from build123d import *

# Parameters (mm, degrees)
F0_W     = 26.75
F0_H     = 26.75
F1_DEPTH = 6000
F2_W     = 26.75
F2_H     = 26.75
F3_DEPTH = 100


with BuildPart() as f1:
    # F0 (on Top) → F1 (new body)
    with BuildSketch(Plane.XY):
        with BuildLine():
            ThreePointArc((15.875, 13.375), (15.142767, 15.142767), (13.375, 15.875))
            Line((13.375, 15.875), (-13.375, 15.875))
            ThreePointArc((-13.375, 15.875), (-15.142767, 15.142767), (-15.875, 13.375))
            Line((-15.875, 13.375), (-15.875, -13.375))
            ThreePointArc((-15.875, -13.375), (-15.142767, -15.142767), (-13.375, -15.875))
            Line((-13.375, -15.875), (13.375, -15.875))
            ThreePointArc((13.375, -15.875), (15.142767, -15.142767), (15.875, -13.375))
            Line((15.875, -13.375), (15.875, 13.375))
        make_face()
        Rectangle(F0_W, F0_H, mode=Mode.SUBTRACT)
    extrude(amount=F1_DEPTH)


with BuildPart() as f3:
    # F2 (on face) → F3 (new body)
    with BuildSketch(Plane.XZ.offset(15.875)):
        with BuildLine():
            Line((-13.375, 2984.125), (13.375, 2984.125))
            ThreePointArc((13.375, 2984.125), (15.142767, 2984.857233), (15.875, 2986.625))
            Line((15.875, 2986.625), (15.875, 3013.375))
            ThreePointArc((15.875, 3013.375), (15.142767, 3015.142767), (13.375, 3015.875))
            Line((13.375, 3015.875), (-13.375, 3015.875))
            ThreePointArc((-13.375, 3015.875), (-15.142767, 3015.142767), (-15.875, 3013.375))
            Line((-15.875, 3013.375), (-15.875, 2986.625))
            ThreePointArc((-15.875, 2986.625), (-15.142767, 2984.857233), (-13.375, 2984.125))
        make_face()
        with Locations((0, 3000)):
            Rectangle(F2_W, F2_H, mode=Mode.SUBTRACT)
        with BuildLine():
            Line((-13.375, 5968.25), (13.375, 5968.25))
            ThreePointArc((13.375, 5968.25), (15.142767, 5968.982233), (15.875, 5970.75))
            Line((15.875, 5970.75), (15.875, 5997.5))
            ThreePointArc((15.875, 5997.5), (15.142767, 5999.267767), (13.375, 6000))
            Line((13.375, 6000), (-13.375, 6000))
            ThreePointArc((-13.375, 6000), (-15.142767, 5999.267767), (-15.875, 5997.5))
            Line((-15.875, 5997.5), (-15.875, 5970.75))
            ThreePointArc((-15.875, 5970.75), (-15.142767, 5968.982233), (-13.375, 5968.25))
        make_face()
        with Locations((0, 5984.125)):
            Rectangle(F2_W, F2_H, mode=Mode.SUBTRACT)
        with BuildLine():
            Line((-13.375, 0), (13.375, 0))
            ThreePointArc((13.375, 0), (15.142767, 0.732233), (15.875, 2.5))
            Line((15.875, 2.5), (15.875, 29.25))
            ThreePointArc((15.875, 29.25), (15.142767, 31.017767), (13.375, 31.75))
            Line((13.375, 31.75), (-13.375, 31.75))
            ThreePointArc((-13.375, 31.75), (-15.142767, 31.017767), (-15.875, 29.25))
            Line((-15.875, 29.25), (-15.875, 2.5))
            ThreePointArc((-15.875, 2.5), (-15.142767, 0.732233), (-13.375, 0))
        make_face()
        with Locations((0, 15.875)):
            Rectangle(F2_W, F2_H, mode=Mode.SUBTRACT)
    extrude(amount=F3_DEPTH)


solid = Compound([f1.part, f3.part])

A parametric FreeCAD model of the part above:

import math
import FreeCAD as App
import Part
import Sketcher
Q = App.Units.Quantity

doc = App.newDocument("Part")
params = doc.addObject("Spreadsheet::Sheet", "Params")
for row, (alias, value) in enumerate([
    ("sketch1_radius", "2.5 mm"),
    ("sketch1_width", "26.75 mm"),
    ("pad1_length", "6000 mm"),
    ("sketch2_radius", "2.5 mm"),
    ("sketch2_width", "26.75 mm"),
    ("pad2_length", "100 mm"),
], start=1):
    params.set(f"A{row}", alias)
    params.set(f"B{row}", "=" + value)
    params.setAlias(f"B{row}", alias)

body = doc.addObject("PartDesign::Body", "Body")

sketch1 = body.newObject("Sketcher::SketchObject", "Sketch")
sketch1.AttachmentSupport = (doc.getObject("XY_Plane"), [""])
sketch1.MapMode = "FlatFace"
sketch1.addGeometry(Part.ArcOfCircle(Part.Circle(App.Vector(13.375, 13.375, 0), App.Vector(0, 0, 1), 2.5), math.radians(-0.000004), math.radians(90.000004)), False)
sketch1.addGeometry(Part.LineSegment(App.Vector(13.375, 15.875, 0), App.Vector(-13.375, 15.875, 0)), False)
sketch1.addGeometry(Part.ArcOfCircle(Part.Circle(App.Vector(-13.375, 13.375, 0), App.Vector(0, 0, 1), 2.5), math.radians(89.999996), math.radians(180.000004)), False)
sketch1.addGeometry(Part.LineSegment(App.Vector(-15.875, 13.375, 0), App.Vector(-15.875, -13.375, 0)), False)
sketch1.addGeometry(Part.ArcOfCircle(Part.Circle(App.Vector(-13.375, -13.375, 0), App.Vector(0, 0, 1), 2.5), math.radians(179.999996), math.radians(270.000004)), False)
sketch1.addGeometry(Part.LineSegment(App.Vector(-13.375, -15.875, 0), App.Vector(13.375, -15.875, 0)), False)
sketch1.addGeometry(Part.ArcOfCircle(Part.Circle(App.Vector(13.375, -13.375, 0), App.Vector(0, 0, 1), 2.5), math.radians(-90.000004), math.radians(0.000004)), False)
sketch1.addGeometry(Part.LineSegment(App.Vector(15.875, -13.375, 0), App.Vector(15.875, 13.375, 0)), False)
sketch1.addGeometry(Part.LineSegment(App.Vector(13.375, -13.375, 0), App.Vector(-13.375, -13.375, 0)), False)
sketch1.addGeometry(Part.LineSegment(App.Vector(-13.375, -13.375, 0), App.Vector(-13.375, 13.375, 0)), False)
sketch1.addGeometry(Part.LineSegment(App.Vector(-13.375, 13.375, 0), App.Vector(13.375, 13.375, 0)), False)
sketch1.addGeometry(Part.LineSegment(App.Vector(13.375, 13.375, 0), App.Vector(13.375, -13.375, 0)), False)
sketch1.addConstraint(Sketcher.Constraint("Tangent", 0, 2, 1, 1))
sketch1.addConstraint(Sketcher.Constraint("Tangent", 1, 2, 2, 1))
sketch1.addConstraint(Sketcher.Constraint("Tangent", 2, 2, 3, 1))
sketch1.addConstraint(Sketcher.Constraint("Tangent", 3, 2, 4, 1))
sketch1.addConstraint(Sketcher.Constraint("Tangent", 4, 2, 5, 1))
sketch1.addConstraint(Sketcher.Constraint("Tangent", 5, 2, 6, 1))
sketch1.addConstraint(Sketcher.Constraint("Tangent", 6, 2, 7, 1))
sketch1.addConstraint(Sketcher.Constraint("Tangent", 7, 2, 0, 1))
sketch1.addConstraint(Sketcher.Constraint("Coincident", 8, 2, 9, 1))
sketch1.addConstraint(Sketcher.Constraint("Coincident", 9, 2, 10, 1))
sketch1.addConstraint(Sketcher.Constraint("Coincident", 10, 2, 11, 1))
sketch1.addConstraint(Sketcher.Constraint("Coincident", 11, 2, 8, 1))
sketch1.addConstraint(Sketcher.Constraint("Horizontal", 1))
sketch1.addConstraint(Sketcher.Constraint("Vertical", 3))
sketch1.addConstraint(Sketcher.Constraint("Horizontal", 5))
sketch1.addConstraint(Sketcher.Constraint("Vertical", 7))
sketch1.addConstraint(Sketcher.Constraint("Horizontal", 8))
sketch1.addConstraint(Sketcher.Constraint("Vertical", 9))
sketch1.addConstraint(Sketcher.Constraint("Horizontal", 10))
sketch1.addConstraint(Sketcher.Constraint("Vertical", 11))
sketch1.addConstraint(Sketcher.Constraint("Coincident", 8, 2, 4, 3))
sketch1.addConstraint(Sketcher.Constraint("Coincident", 9, 2, 2, 3))
sketch1.addConstraint(Sketcher.Constraint("Coincident", 10, 2, 0, 3))
sketch1.addConstraint(Sketcher.Constraint("Equal", 4, 6))
sketch1.addConstraint(Sketcher.Constraint("Symmetric", 0, 3, 4, 3, -1, 1))
sketch1.addConstraint(Sketcher.Constraint("Equal", 10, 3))
sketch1.addConstraint(Sketcher.Constraint("Radius", 0, Q("2.5 mm")))
sketch1.addConstraint(Sketcher.Constraint("DistanceX", 1, 2, 1, 1, Q("26.75 mm")))
sketch1.setExpression("Constraints[26]", "Params.sketch1_radius")
sketch1.setExpression("Constraints[27]", "Params.sketch1_width")
pad1 = body.newObject("PartDesign::Pad", "Pad")
pad1.Profile = sketch1
pad1.setExpression("Length", "Params.pad1_length")
body2 = doc.addObject("PartDesign::Body", "Body001")
body2.AllowCompound = True

sketch2 = body2.newObject("Sketcher::SketchObject", "Sketch001")
sketch2.AttachmentSupport = (doc.getObject("XZ_Plane001"), [""])
sketch2.MapMode = "FlatFace"
sketch2.AttachmentOffset = App.Placement(App.Vector(0, 0, 15.875), App.Rotation())
sketch2.addGeometry(Part.LineSegment(App.Vector(-13.375, 2984.125, 0), App.Vector(13.375, 2984.125, 0)), False)
sketch2.addGeometry(Part.ArcOfCircle(Part.Circle(App.Vector(13.375, 2986.625, 0), App.Vector(0, 0, 1), 2.5), math.radians(-90.000004), math.radians(0.000004)), False)
sketch2.addGeometry(Part.LineSegment(App.Vector(15.875, 2986.625, 0), App.Vector(15.875, 3013.375, 0)), False)
sketch2.addGeometry(Part.ArcOfCircle(Part.Circle(App.Vector(13.375, 3013.375, 0), App.Vector(0, 0, 1), 2.5), math.radians(-0.000004), math.radians(90.000004)), False)
sketch2.addGeometry(Part.LineSegment(App.Vector(13.375, 3015.875, 0), App.Vector(-13.375, 3015.875, 0)), False)
sketch2.addGeometry(Part.ArcOfCircle(Part.Circle(App.Vector(-13.375, 3013.375, 0), App.Vector(0, 0, 1), 2.5), math.radians(89.999996), math.radians(180.000004)), False)
sketch2.addGeometry(Part.LineSegment(App.Vector(-15.875, 3013.375, 0), App.Vector(-15.875, 2986.625, 0)), False)
sketch2.addGeometry(Part.ArcOfCircle(Part.Circle(App.Vector(-13.375, 2986.625, 0), App.Vector(0, 0, 1), 2.5), math.radians(179.999996), math.radians(270.000004)), False)
sketch2.addGeometry(Part.LineSegment(App.Vector(13.375, 2986.625, 0), App.Vector(-13.375, 2986.625, 0)), False)
sketch2.addGeometry(Part.LineSegment(App.Vector(-13.375, 2986.625, 0), App.Vector(-13.375, 3013.375, 0)), False)
sketch2.addGeometry(Part.LineSegment(App.Vector(-13.375, 3013.375, 0), App.Vector(13.375, 3013.375, 0)), False)
sketch2.addGeometry(Part.LineSegment(App.Vector(13.375, 3013.375, 0), App.Vector(13.375, 2986.625, 0)), False)
sketch2.addGeometry(Part.LineSegment(App.Vector(-13.375, 5968.25, 0), App.Vector(13.375, 5968.25, 0)), False)
sketch2.addGeometry(Part.ArcOfCircle(Part.Circle(App.Vector(13.375, 5970.75, 0), App.Vector(0, 0, 1), 2.5), math.radians(-90.000004), math.radians(0.000004)), False)
sketch2.addGeometry(Part.LineSegment(App.Vector(15.875, 5970.75, 0), App.Vector(15.875, 5997.5, 0)), False)
sketch2.addGeometry(Part.ArcOfCircle(Part.Circle(App.Vector(13.375, 5997.5, 0), App.Vector(0, 0, 1), 2.5), math.radians(-0.000004), math.radians(90.000004)), False)
sketch2.addGeometry(Part.LineSegment(App.Vector(13.375, 6000, 0), App.Vector(-13.375, 6000, 0)), False)
sketch2.addGeometry(Part.ArcOfCircle(Part.Circle(App.Vector(-13.375, 5997.5, 0), App.Vector(0, 0, 1), 2.5), math.radians(89.999996), math.radians(180.000004)), False)
sketch2.addGeometry(Part.LineSegment(App.Vector(-15.875, 5997.5, 0), App.Vector(-15.875, 5970.75, 0)), False)
sketch2.addGeometry(Part.ArcOfCircle(Part.Circle(App.Vector(-13.375, 5970.75, 0), App.Vector(0, 0, 1), 2.5), math.radians(179.999996), math.radians(270.000004)), False)
sketch2.addGeometry(Part.LineSegment(App.Vector(13.375, 5970.75, 0), App.Vector(-13.375, 5970.75, 0)), False)
sketch2.addGeometry(Part.LineSegment(App.Vector(-13.375, 5970.75, 0), App.Vector(-13.375, 5997.5, 0)), False)
sketch2.addGeometry(Part.LineSegment(App.Vector(-13.375, 5997.5, 0), App.Vector(13.375, 5997.5, 0)), False)
sketch2.addGeometry(Part.LineSegment(App.Vector(13.375, 5997.5, 0), App.Vector(13.375, 5970.75, 0)), False)
sketch2.addGeometry(Part.LineSegment(App.Vector(-13.375, 0, 0), App.Vector(13.375, 0, 0)), False)
sketch2.addGeometry(Part.ArcOfCircle(Part.Circle(App.Vector(13.375, 2.5, 0), App.Vector(0, 0, 1), 2.5), math.radians(-90.000004), math.radians(0.000004)), False)
sketch2.addGeometry(Part.LineSegment(App.Vector(15.875, 2.5, 0), App.Vector(15.875, 29.25, 0)), False)
sketch2.addGeometry(Part.ArcOfCircle(Part.Circle(App.Vector(13.375, 29.25, 0), App.Vector(0, 0, 1), 2.5), math.radians(-0.000004), math.radians(90.000004)), False)
sketch2.addGeometry(Part.LineSegment(App.Vector(13.375, 31.75, 0), App.Vector(-13.375, 31.75, 0)), False)
sketch2.addGeometry(Part.ArcOfCircle(Part.Circle(App.Vector(-13.375, 29.25, 0), App.Vector(0, 0, 1), 2.5), math.radians(89.999996), math.radians(180.000004)), False)
sketch2.addGeometry(Part.LineSegment(App.Vector(-15.875, 29.25, 0), App.Vector(-15.875, 2.5, 0)), False)
sketch2.addGeometry(Part.ArcOfCircle(Part.Circle(App.Vector(-13.375, 2.5, 0), App.Vector(0, 0, 1), 2.5), math.radians(179.999996), math.radians(270.000004)), False)
sketch2.addGeometry(Part.LineSegment(App.Vector(13.375, 2.5, 0), App.Vector(-13.375, 2.5, 0)), False)
sketch2.addGeometry(Part.LineSegment(App.Vector(-13.375, 2.5, 0), App.Vector(-13.375, 29.25, 0)), False)
sketch2.addGeometry(Part.LineSegment(App.Vector(-13.375, 29.25, 0), App.Vector(13.375, 29.25, 0)), False)
sketch2.addGeometry(Part.LineSegment(App.Vector(13.375, 29.25, 0), App.Vector(13.375, 2.5, 0)), False)
sketch2.addConstraint(Sketcher.Constraint("Tangent", 0, 2, 1, 1))
sketch2.addConstraint(Sketcher.Constraint("Tangent", 1, 2, 2, 1))
sketch2.addConstraint(Sketcher.Constraint("Tangent", 2, 2, 3, 1))
sketch2.addConstraint(Sketcher.Constraint("Tangent", 3, 2, 4, 1))
sketch2.addConstraint(Sketcher.Constraint("Tangent", 4, 2, 5, 1))
sketch2.addConstraint(Sketcher.Constraint("Tangent", 5, 2, 6, 1))
sketch2.addConstraint(Sketcher.Constraint("Tangent", 6, 2, 7, 1))
sketch2.addConstraint(Sketcher.Constraint("Tangent", 7, 2, 0, 1))
sketch2.addConstraint(Sketcher.Constraint("Coincident", 8, 2, 9, 1))
sketch2.addConstraint(Sketcher.Constraint("Coincident", 9, 2, 10, 1))
sketch2.addConstraint(Sketcher.Constraint("Coincident", 10, 2, 11, 1))
sketch2.addConstraint(Sketcher.Constraint("Coincident", 11, 2, 8, 1))
sketch2.addConstraint(Sketcher.Constraint("Tangent", 12, 2, 13, 1))
sketch2.addConstraint(Sketcher.Constraint("Tangent", 13, 2, 14, 1))
sketch2.addConstraint(Sketcher.Constraint("Tangent", 14, 2, 15, 1))
sketch2.addConstraint(Sketcher.Constraint("Tangent", 15, 2, 16, 1))
sketch2.addConstraint(Sketcher.Constraint("Tangent", 16, 2, 17, 1))
sketch2.addConstraint(Sketcher.Constraint("Tangent", 17, 2, 18, 1))
sketch2.addConstraint(Sketcher.Constraint("Tangent", 18, 2, 19, 1))
sketch2.addConstraint(Sketcher.Constraint("Tangent", 19, 2, 12, 1))
sketch2.addConstraint(Sketcher.Constraint("Coincident", 20, 2, 21, 1))
sketch2.addConstraint(Sketcher.Constraint("Coincident", 21, 2, 22, 1))
sketch2.addConstraint(Sketcher.Constraint("Coincident", 22, 2, 23, 1))
sketch2.addConstraint(Sketcher.Constraint("Coincident", 23, 2, 20, 1))
sketch2.addConstraint(Sketcher.Constraint("Tangent", 24, 2, 25, 1))
sketch2.addConstraint(Sketcher.Constraint("Tangent", 25, 2, 26, 1))
sketch2.addConstraint(Sketcher.Constraint("Tangent", 26, 2, 27, 1))
sketch2.addConstraint(Sketcher.Constraint("Tangent", 27, 2, 28, 1))
sketch2.addConstraint(Sketcher.Constraint("Tangent", 28, 2, 29, 1))
sketch2.addConstraint(Sketcher.Constraint("Tangent", 29, 2, 30, 1))
sketch2.addConstraint(Sketcher.Constraint("Tangent", 30, 2, 31, 1))
sketch2.addConstraint(Sketcher.Constraint("Tangent", 31, 2, 24, 1))
sketch2.addConstraint(Sketcher.Constraint("Coincident", 32, 2, 33, 1))
sketch2.addConstraint(Sketcher.Constraint("Coincident", 33, 2, 34, 1))
sketch2.addConstraint(Sketcher.Constraint("Coincident", 34, 2, 35, 1))
sketch2.addConstraint(Sketcher.Constraint("Coincident", 35, 2, 32, 1))
sketch2.addConstraint(Sketcher.Constraint("Horizontal", 0))
sketch2.addConstraint(Sketcher.Constraint("Vertical", 2))
sketch2.addConstraint(Sketcher.Constraint("Horizontal", 4))
sketch2.addConstraint(Sketcher.Constraint("Vertical", 6))
sketch2.addConstraint(Sketcher.Constraint("Horizontal", 8))
sketch2.addConstraint(Sketcher.Constraint("Vertical", 9))
sketch2.addConstraint(Sketcher.Constraint("Horizontal", 10))
sketch2.addConstraint(Sketcher.Constraint("Vertical", 11))
sketch2.addConstraint(Sketcher.Constraint("Horizontal", 12))
sketch2.addConstraint(Sketcher.Constraint("Vertical", 14))
sketch2.addConstraint(Sketcher.Constraint("Horizontal", 16))
sketch2.addConstraint(Sketcher.Constraint("Vertical", 18))
sketch2.addConstraint(Sketcher.Constraint("Horizontal", 20))
sketch2.addConstraint(Sketcher.Constraint("Vertical", 21))
sketch2.addConstraint(Sketcher.Constraint("Horizontal", 22))
sketch2.addConstraint(Sketcher.Constraint("Vertical", 23))
sketch2.addConstraint(Sketcher.Constraint("Horizontal", 24))
sketch2.addConstraint(Sketcher.Constraint("Vertical", 26))
sketch2.addConstraint(Sketcher.Constraint("Horizontal", 28))
sketch2.addConstraint(Sketcher.Constraint("Vertical", 30))
sketch2.addConstraint(Sketcher.Constraint("Horizontal", 32))
sketch2.addConstraint(Sketcher.Constraint("Vertical", 33))
sketch2.addConstraint(Sketcher.Constraint("Horizontal", 34))
sketch2.addConstraint(Sketcher.Constraint("Vertical", 35))
sketch2.addConstraint(Sketcher.Constraint("Coincident", 8, 2, 7, 3))
sketch2.addConstraint(Sketcher.Constraint("Coincident", 9, 2, 5, 3))
sketch2.addConstraint(Sketcher.Constraint("Coincident", 10, 2, 3, 3))
sketch2.addConstraint(Sketcher.Constraint("Coincident", 20, 2, 19, 3))
sketch2.addConstraint(Sketcher.Constraint("Coincident", 21, 2, 17, 3))
sketch2.addConstraint(Sketcher.Constraint("Coincident", 22, 2, 15, 3))
sketch2.addConstraint(Sketcher.Constraint("Coincident", 32, 2, 31, 3))
sketch2.addConstraint(Sketcher.Constraint("Coincident", 33, 2, 29, 3))
sketch2.addConstraint(Sketcher.Constraint("Coincident", 34, 2, 27, 3))
sketch2.addConstraint(Sketcher.Constraint("Equal", 1, 3))
sketch2.addConstraint(Sketcher.Constraint("Equal", 7, 13))
sketch2.addConstraint(Sketcher.Constraint("Equal", 13, 15))
sketch2.addConstraint(Sketcher.Constraint("Equal", 19, 25))
sketch2.addConstraint(Sketcher.Constraint("Equal", 25, 27))
sketch2.addConstraint(Sketcher.Constraint("Symmetric", 24, 2, 31, 2, -1, 1))
sketch2.addConstraint(Sketcher.Constraint("Vertical", 3, 3, 13, 3))
sketch2.addConstraint(Sketcher.Constraint("Vertical", 7, 3, 17, 3))
sketch2.addConstraint(Sketcher.Constraint("Vertical", 15, 3, 25, 3))
sketch2.addConstraint(Sketcher.Constraint("Vertical", 19, 3, 29, 3))
sketch2.addConstraint(Sketcher.Constraint("Equal", 34, 2))
sketch2.addConstraint(Sketcher.Constraint("Equal", 11, 14))
sketch2.addConstraint(Sketcher.Constraint("Equal", 23, 26))
sketch2.addConstraint(Sketcher.Constraint("Radius", 1, Q("2.5 mm")))
sketch2.addConstraint(Sketcher.Constraint("DistanceY", -1, 1, 15, 2, Q("6000 mm")))
sketch2.addConstraint(Sketcher.Constraint("DistanceX", 0, 1, 0, 2, Q("26.75 mm")))
sketch2.addConstraint(Sketcher.Constraint("DistanceY", -1, 1, 1, 3, Q("2986.625 mm")))
sketch2.setExpression("Constraints[82]", "Params.sketch2_radius")
sketch2.setExpression("Constraints[84]", "Params.sketch2_width")
pad2 = body2.newObject("PartDesign::Pad", "Pad001")
pad2.Profile = sketch2
pad2.setExpression("Length", "Params.pad2_length")

doc.recompute()
